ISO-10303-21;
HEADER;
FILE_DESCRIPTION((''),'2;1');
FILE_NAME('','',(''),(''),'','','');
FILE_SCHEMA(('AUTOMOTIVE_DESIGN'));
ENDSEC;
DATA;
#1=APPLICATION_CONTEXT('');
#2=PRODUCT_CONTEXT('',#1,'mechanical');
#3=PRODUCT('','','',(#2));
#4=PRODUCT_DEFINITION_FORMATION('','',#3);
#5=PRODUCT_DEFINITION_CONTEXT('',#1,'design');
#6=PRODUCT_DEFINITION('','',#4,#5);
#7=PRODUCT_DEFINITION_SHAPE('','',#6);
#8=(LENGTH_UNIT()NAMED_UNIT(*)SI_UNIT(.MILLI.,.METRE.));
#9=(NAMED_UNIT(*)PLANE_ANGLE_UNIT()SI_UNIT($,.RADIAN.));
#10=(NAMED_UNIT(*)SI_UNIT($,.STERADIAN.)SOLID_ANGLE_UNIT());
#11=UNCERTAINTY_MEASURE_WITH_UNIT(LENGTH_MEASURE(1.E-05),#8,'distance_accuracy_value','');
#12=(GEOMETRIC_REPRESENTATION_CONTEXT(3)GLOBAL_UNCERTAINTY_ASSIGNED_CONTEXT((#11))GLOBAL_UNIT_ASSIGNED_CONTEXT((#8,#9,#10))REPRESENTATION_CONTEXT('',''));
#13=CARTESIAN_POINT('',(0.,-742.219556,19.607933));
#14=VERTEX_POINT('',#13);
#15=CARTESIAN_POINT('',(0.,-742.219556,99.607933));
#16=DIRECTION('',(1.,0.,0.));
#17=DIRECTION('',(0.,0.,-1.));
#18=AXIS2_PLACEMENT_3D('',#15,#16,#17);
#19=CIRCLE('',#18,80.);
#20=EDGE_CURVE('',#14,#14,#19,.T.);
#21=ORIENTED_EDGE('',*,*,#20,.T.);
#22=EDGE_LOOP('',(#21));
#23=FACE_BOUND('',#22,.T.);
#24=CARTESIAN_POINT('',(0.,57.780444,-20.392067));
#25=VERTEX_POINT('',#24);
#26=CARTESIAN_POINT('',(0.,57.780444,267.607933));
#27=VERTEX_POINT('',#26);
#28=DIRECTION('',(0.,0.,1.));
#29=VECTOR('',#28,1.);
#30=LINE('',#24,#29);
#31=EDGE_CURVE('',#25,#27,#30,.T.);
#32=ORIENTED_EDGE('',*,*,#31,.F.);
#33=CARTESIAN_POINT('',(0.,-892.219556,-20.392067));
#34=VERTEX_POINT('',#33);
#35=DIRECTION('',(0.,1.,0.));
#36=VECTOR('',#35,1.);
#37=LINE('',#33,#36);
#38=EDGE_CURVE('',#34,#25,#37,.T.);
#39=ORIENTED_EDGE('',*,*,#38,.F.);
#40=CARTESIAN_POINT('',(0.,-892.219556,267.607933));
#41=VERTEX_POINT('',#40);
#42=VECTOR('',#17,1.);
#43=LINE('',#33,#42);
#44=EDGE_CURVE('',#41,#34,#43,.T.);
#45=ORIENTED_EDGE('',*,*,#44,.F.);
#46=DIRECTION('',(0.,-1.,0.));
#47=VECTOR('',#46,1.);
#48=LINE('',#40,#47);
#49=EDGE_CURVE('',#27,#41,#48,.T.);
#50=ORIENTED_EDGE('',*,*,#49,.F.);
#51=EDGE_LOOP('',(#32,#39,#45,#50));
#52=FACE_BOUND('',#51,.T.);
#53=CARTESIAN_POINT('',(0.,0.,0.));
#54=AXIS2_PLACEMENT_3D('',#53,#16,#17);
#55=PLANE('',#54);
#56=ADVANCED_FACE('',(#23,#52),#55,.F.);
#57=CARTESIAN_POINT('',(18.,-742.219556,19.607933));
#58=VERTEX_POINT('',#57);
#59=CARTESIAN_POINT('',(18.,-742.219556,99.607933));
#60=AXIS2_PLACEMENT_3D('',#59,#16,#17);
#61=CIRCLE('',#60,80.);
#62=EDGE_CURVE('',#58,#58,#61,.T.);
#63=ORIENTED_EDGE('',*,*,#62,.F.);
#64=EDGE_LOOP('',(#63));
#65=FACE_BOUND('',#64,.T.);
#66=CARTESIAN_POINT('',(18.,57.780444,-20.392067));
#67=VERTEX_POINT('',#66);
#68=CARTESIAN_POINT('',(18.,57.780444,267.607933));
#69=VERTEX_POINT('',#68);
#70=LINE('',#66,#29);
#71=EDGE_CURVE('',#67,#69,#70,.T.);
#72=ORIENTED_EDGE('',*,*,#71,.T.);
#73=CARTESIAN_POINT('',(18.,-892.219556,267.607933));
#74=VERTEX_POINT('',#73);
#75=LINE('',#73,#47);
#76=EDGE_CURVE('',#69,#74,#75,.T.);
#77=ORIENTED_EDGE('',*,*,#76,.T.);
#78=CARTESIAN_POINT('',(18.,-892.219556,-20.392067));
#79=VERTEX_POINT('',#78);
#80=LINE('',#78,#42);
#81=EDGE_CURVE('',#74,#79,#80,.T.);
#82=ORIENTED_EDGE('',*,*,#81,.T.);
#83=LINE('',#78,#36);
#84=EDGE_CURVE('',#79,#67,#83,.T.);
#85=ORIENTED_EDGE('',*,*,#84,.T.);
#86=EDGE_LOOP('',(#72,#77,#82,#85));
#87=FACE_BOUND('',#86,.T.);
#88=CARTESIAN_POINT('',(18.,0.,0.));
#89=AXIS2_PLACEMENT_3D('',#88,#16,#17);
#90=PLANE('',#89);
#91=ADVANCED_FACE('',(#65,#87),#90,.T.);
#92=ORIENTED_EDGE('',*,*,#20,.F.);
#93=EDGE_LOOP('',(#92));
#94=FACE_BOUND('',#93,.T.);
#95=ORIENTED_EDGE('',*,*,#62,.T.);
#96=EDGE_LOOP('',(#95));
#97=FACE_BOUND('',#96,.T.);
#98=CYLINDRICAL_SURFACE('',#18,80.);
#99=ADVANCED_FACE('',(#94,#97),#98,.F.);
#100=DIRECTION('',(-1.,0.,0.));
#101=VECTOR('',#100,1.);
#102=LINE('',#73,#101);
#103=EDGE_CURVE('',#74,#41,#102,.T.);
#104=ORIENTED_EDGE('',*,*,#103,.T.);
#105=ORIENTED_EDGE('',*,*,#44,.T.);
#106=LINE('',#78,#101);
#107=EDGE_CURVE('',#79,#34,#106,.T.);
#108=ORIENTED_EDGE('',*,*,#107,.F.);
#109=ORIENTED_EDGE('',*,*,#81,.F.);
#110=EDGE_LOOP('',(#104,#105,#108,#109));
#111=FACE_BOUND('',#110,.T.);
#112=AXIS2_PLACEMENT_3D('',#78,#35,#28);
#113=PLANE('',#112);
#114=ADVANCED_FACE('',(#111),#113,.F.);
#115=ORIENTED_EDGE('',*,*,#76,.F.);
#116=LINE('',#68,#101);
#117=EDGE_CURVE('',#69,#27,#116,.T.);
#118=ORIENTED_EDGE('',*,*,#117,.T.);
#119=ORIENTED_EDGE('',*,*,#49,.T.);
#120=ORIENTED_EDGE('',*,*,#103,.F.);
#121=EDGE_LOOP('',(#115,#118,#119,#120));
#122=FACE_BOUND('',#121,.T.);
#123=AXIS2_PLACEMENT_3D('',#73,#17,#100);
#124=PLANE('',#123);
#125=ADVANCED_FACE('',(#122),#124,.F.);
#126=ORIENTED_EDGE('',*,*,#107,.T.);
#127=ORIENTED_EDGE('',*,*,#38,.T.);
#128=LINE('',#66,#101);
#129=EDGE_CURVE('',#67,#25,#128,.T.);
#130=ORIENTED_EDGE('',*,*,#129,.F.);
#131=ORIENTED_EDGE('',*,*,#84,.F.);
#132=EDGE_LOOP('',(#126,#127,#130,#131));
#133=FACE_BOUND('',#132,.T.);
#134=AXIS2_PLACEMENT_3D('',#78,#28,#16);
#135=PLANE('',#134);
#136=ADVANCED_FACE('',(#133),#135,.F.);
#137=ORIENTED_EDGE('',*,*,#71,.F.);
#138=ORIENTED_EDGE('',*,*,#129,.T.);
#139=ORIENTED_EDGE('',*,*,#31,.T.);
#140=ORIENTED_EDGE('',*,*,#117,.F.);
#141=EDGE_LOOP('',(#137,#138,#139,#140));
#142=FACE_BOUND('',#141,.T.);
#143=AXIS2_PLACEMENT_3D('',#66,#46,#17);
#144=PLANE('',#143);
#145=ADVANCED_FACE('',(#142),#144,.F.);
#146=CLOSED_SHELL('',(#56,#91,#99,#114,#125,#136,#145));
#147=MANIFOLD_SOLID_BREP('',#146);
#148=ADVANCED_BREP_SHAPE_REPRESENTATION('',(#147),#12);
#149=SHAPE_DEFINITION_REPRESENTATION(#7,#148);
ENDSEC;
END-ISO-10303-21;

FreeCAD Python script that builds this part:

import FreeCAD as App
import Part
import Sketcher


def add_polygon(sketch, points):
    """Adds a closed chain of lines whose ends are joined by coincident constraints."""
    first, n = sketch.GeometryCount, len(points)
    for a, b in zip(points, points[1:] + points[:1]):
        sketch.addGeometry(Part.LineSegment(App.Vector(*a, 0), App.Vector(*b, 0)), False)
    for i in range(n):
        sketch.addConstraint(Sketcher.Constraint("Coincident", first + i, 2, first + (i + 1) % n, 1))

doc = App.newDocument("Part")
body = doc.addObject("PartDesign::Body", "Body")

# Sketch on YZ plane
sketch1 = doc.addObject("Sketcher::SketchObject", "Sketch")
body.addObject(sketch1)
sketch1.AttachmentSupport = (doc.YZ_Plane, [""])
sketch1.MapMode = "FlatFace"
add_polygon(sketch1, [(58, 268), (-892, 268), (-892, -20), (58, -20)])  # lines 0-3
sketch1.addConstraint([
    Sketcher.Constraint("Horizontal", 0),
    Sketcher.Constraint("Vertical", 1),
    Sketcher.Constraint("Horizontal", 2),
    Sketcher.Constraint("Vertical", 3),
    Sketcher.Constraint("DistanceX", 0, 2, 0, 1, 950.0),
    Sketcher.Constraint("DistanceY", 1, 2, 1, 1, 288.0),
    Sketcher.Constraint("DistanceX", 0, 2, -1, 1, 892.219556),
    Sketcher.Constraint("DistanceY", -1, 1, 0, 2, 267.607933),
])
pad1 = doc.addObject("PartDesign::Pad", "Pad")
body.addObject(pad1)
pad1.Profile = sketch1
pad1.Length = 18

# Sketch on YZ plane
sketch2 = doc.addObject("Sketcher::SketchObject", "Sketch001")
body.addObject(sketch2)
sketch2.AttachmentSupport = (doc.YZ_Plane, [""])
sketch2.MapMode = "FlatFace"
sketch2.AttachmentOffset = App.Placement(App.Vector(0, 0, 18), App.Rotation())
sketch2.addGeometry(Part.Circle(App.Vector(-742, 100, 0), App.Vector(0, 0, 1), 80), False)
sketch2.addConstraint([
    Sketcher.Constraint("Diameter", 0, 160.0),
    Sketcher.Constraint("DistanceX", 0, 3, -1, 1, 742.219556),
    Sketcher.Constraint("DistanceY", -1, 1, 0, 3, 99.607933),
])
pocket1 = doc.addObject("PartDesign::Pocket", "Pocket")
body.addObject(pocket1)
pocket1.Profile = sketch2
pocket1.Type = "ThroughAll"

doc.recompute()
